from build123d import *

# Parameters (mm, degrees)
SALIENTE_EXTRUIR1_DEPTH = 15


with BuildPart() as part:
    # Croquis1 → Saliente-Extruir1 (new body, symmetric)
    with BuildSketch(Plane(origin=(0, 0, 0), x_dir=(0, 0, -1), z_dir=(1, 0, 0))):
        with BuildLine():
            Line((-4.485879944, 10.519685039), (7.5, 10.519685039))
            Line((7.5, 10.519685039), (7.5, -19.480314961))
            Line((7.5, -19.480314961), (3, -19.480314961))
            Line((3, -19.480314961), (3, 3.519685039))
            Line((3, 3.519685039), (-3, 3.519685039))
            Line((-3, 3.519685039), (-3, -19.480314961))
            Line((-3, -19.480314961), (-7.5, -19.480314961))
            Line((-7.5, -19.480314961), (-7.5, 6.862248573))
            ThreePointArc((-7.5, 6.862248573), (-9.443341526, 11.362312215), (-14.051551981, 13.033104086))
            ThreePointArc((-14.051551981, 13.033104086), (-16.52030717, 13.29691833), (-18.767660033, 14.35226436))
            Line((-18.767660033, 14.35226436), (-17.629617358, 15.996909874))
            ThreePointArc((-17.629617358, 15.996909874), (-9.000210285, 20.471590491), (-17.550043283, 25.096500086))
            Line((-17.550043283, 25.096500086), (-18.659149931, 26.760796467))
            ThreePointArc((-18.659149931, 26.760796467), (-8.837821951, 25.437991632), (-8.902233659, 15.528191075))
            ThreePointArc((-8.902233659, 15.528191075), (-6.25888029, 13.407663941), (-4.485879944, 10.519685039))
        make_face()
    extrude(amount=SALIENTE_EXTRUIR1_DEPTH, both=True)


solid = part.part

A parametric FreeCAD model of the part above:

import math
import FreeCAD as App
import Part
import Sketcher

V = App.Vector

doc = App.newDocument("Part")
params = doc.addObject("Spreadsheet::Sheet", "Params")
for row, (alias, value) in enumerate([
    ("sketch1_radius", "7.5 mm"),
    ("sketch1_radius2", "5.5 mm"),
    ("sketch1_width", "23 mm"),
    ("sketch1_width2", "30 mm"),
    ("sketch1_height", "6 mm"),
    ("pad1_length", "30 mm"),
], start=1):
    params.set(f"A{row}", alias)
    params.set(f"B{row}", "=" + value)
    params.setAlias(f"B{row}", alias)

body = doc.addObject("PartDesign::Body", "Body")

# Sketch on YZ plane
sketch1 = body.newObject("Sketcher::SketchObject", "Sketch")
sketch1.AttachmentSupport = (doc.getObject("YZ_Plane"), [""])
sketch1.MapMode = "FlatFace"
sketch1.addGeometry([
    Part.LineSegment(V(10.5, -7.5, 0), V(10.5, 4.5, 0)),  # 0
    Part.ArcOfCircle(Part.Circle(V(6.9, 13.7, 0), V(0, 0, 1), 9.9), math.radians(-68), math.radians(-29)),  # 1
    Part.ArcOfCircle(Part.Circle(V(20.5, 14.5, 0), V(0, 0, 1), 7.5), math.radians(-132), math.radians(34)),  # 2
    Part.LineSegment(V(26.8, 18.7, 0), V(25.1, 17.6, 0)),  # 3
    Part.ArcOfCircle(Part.Circle(V(20.5, 14.5, 0), V(0, 0, 1), 5.5), math.radians(145), math.radians(394)),  # 4
    Part.LineSegment(V(16, 17.6, 0), V(14.4, 18.8, 0)),  # 5
    Part.ArcOfCircle(Part.Circle(V(20.5, 14.5, 0), V(0, 0, 1), 7.5), math.radians(145), math.radians(183)),  # 6
    Part.ArcOfCircle(Part.Circle(V(6.9, 13.7, 0), V(0, 0, 1), 6.2), math.radians(-90), math.radians(3)),  # 7
    Part.LineSegment(V(6.9, 7.5, 0), V(-19.5, 7.5, 0)),  # 8
    Part.LineSegment(V(-19.5, 7.5, 0), V(-19.5, 3, 0)),  # 9
    Part.LineSegment(V(-19.5, 3, 0), V(3.5, 3, 0)),  # 10
    Part.LineSegment(V(3.5, 3, 0), V(3.5, -3, 0)),  # 11
    Part.LineSegment(V(3.5, -3, 0), V(-19.5, -3, 0)),  # 12
    Part.LineSegment(V(-19.5, -3, 0), V(-19.5, -7.5, 0)),  # 13
    Part.LineSegment(V(-19.5, -7.5, 0), V(10.5, -7.5, 0)),  # 14
], False)
sketch1.addConstraint([
    Sketcher.Constraint("Coincident", 0, 2, 1, 1),
    Sketcher.Constraint("Coincident", 1, 2, 2, 1),
    Sketcher.Constraint("Coincident", 2, 2, 3, 1),
    Sketcher.Constraint("Coincident", 3, 2, 4, 2),
    Sketcher.Constraint("Coincident", 4, 1, 5, 1),
    Sketcher.Constraint("Coincident", 5, 2, 6, 1),
    Sketcher.Constraint("Tangent", 6, 2, 7, 2),
    Sketcher.Constraint("Tangent", 7, 1, 8, 1),
    Sketcher.Constraint("Coincident", 8, 2, 9, 1),
    Sketcher.Constraint("Coincident", 9, 2, 10, 1),
    Sketcher.Constraint("Coincident", 10, 2, 11, 1),
    Sketcher.Constraint("Coincident", 11, 2, 12, 1),
    Sketcher.Constraint("Coincident", 12, 2, 13, 1),
    Sketcher.Constraint("Coincident", 13, 2, 14, 1),
    Sketcher.Constraint("Coincident", 14, 2, 0, 1),
    Sketcher.Constraint("Vertical", 0),
    Sketcher.Constraint("Horizontal", 8),
    Sketcher.Constraint("Vertical", 9),
    Sketcher.Constraint("Horizontal", 10),
    Sketcher.Constraint("Vertical", 11),
    Sketcher.Constraint("Horizontal", 12),
    Sketcher.Constraint("Vertical", 13),
    Sketcher.Constraint("Horizontal", 14),
    Sketcher.Constraint("Coincident", 4, 3, 2, 3),
    Sketcher.Constraint("Coincident", 6, 3, 2, 3),
    Sketcher.Constraint("Coincident", 7, 3, 1, 3),
    Sketcher.Constraint("Equal", 2, 6),
    Sketcher.Constraint("Symmetric", 9, 2, 12, 2, -1),
    Sketcher.Constraint("Equal", 9, 13),
    Sketcher.Constraint("Radius", 2, 7.5),
    Sketcher.Constraint("Radius", 4, 5.5),
    Sketcher.Constraint("DistanceX", 10, 1, 10, 2, 23.0),
    Sketcher.Constraint("DistanceX", 14, 1, 14, 2, 30.0),
    Sketcher.Constraint("DistanceY", 11, 2, 11, 1, 6.0),
    Sketcher.Constraint("DistanceY", 9, 2, 9, 1, 4.5),
    Sketcher.Constraint("DistanceX", 0, 2, 6, 3, 10.0),
    Sketcher.Constraint("DistanceY", -1, 1, 2, 3, 14.5),
    Sketcher.Constraint("Radius", 1, 9.896662),
    Sketcher.Constraint("Radius", 7, 6.181916),
    Sketcher.Constraint("DistanceX", -1, 1, 3, 2, 25.0965),
    Sketcher.Constraint("DistanceX", -1, 1, 1, 3, 6.862249),
    Sketcher.Constraint("DistanceY", -1, 1, 2, 2, 18.65915),
    Sketcher.Constraint("DistanceX", -1, 1, 4, 1, 15.99691),
    Sketcher.Constraint("DistanceY", -1, 1, 5, 2, 18.76766),
])
sketch1.setExpression("Constraints[29]", "Params.sketch1_radius")
sketch1.setExpression("Constraints[30]", "Params.sketch1_radius2")
sketch1.setExpression("Constraints[31]", "Params.sketch1_width")
sketch1.setExpression("Constraints[32]", "Params.sketch1_width2")
sketch1.setExpression("Constraints[33]", "Params.sketch1_height")
pad1 = body.newObject("PartDesign::Pad", "Pad")
pad1.Profile = sketch1
pad1.setExpression("Length", "Params.pad1_length")
pad1.Midplane = True

doc.recompute()
